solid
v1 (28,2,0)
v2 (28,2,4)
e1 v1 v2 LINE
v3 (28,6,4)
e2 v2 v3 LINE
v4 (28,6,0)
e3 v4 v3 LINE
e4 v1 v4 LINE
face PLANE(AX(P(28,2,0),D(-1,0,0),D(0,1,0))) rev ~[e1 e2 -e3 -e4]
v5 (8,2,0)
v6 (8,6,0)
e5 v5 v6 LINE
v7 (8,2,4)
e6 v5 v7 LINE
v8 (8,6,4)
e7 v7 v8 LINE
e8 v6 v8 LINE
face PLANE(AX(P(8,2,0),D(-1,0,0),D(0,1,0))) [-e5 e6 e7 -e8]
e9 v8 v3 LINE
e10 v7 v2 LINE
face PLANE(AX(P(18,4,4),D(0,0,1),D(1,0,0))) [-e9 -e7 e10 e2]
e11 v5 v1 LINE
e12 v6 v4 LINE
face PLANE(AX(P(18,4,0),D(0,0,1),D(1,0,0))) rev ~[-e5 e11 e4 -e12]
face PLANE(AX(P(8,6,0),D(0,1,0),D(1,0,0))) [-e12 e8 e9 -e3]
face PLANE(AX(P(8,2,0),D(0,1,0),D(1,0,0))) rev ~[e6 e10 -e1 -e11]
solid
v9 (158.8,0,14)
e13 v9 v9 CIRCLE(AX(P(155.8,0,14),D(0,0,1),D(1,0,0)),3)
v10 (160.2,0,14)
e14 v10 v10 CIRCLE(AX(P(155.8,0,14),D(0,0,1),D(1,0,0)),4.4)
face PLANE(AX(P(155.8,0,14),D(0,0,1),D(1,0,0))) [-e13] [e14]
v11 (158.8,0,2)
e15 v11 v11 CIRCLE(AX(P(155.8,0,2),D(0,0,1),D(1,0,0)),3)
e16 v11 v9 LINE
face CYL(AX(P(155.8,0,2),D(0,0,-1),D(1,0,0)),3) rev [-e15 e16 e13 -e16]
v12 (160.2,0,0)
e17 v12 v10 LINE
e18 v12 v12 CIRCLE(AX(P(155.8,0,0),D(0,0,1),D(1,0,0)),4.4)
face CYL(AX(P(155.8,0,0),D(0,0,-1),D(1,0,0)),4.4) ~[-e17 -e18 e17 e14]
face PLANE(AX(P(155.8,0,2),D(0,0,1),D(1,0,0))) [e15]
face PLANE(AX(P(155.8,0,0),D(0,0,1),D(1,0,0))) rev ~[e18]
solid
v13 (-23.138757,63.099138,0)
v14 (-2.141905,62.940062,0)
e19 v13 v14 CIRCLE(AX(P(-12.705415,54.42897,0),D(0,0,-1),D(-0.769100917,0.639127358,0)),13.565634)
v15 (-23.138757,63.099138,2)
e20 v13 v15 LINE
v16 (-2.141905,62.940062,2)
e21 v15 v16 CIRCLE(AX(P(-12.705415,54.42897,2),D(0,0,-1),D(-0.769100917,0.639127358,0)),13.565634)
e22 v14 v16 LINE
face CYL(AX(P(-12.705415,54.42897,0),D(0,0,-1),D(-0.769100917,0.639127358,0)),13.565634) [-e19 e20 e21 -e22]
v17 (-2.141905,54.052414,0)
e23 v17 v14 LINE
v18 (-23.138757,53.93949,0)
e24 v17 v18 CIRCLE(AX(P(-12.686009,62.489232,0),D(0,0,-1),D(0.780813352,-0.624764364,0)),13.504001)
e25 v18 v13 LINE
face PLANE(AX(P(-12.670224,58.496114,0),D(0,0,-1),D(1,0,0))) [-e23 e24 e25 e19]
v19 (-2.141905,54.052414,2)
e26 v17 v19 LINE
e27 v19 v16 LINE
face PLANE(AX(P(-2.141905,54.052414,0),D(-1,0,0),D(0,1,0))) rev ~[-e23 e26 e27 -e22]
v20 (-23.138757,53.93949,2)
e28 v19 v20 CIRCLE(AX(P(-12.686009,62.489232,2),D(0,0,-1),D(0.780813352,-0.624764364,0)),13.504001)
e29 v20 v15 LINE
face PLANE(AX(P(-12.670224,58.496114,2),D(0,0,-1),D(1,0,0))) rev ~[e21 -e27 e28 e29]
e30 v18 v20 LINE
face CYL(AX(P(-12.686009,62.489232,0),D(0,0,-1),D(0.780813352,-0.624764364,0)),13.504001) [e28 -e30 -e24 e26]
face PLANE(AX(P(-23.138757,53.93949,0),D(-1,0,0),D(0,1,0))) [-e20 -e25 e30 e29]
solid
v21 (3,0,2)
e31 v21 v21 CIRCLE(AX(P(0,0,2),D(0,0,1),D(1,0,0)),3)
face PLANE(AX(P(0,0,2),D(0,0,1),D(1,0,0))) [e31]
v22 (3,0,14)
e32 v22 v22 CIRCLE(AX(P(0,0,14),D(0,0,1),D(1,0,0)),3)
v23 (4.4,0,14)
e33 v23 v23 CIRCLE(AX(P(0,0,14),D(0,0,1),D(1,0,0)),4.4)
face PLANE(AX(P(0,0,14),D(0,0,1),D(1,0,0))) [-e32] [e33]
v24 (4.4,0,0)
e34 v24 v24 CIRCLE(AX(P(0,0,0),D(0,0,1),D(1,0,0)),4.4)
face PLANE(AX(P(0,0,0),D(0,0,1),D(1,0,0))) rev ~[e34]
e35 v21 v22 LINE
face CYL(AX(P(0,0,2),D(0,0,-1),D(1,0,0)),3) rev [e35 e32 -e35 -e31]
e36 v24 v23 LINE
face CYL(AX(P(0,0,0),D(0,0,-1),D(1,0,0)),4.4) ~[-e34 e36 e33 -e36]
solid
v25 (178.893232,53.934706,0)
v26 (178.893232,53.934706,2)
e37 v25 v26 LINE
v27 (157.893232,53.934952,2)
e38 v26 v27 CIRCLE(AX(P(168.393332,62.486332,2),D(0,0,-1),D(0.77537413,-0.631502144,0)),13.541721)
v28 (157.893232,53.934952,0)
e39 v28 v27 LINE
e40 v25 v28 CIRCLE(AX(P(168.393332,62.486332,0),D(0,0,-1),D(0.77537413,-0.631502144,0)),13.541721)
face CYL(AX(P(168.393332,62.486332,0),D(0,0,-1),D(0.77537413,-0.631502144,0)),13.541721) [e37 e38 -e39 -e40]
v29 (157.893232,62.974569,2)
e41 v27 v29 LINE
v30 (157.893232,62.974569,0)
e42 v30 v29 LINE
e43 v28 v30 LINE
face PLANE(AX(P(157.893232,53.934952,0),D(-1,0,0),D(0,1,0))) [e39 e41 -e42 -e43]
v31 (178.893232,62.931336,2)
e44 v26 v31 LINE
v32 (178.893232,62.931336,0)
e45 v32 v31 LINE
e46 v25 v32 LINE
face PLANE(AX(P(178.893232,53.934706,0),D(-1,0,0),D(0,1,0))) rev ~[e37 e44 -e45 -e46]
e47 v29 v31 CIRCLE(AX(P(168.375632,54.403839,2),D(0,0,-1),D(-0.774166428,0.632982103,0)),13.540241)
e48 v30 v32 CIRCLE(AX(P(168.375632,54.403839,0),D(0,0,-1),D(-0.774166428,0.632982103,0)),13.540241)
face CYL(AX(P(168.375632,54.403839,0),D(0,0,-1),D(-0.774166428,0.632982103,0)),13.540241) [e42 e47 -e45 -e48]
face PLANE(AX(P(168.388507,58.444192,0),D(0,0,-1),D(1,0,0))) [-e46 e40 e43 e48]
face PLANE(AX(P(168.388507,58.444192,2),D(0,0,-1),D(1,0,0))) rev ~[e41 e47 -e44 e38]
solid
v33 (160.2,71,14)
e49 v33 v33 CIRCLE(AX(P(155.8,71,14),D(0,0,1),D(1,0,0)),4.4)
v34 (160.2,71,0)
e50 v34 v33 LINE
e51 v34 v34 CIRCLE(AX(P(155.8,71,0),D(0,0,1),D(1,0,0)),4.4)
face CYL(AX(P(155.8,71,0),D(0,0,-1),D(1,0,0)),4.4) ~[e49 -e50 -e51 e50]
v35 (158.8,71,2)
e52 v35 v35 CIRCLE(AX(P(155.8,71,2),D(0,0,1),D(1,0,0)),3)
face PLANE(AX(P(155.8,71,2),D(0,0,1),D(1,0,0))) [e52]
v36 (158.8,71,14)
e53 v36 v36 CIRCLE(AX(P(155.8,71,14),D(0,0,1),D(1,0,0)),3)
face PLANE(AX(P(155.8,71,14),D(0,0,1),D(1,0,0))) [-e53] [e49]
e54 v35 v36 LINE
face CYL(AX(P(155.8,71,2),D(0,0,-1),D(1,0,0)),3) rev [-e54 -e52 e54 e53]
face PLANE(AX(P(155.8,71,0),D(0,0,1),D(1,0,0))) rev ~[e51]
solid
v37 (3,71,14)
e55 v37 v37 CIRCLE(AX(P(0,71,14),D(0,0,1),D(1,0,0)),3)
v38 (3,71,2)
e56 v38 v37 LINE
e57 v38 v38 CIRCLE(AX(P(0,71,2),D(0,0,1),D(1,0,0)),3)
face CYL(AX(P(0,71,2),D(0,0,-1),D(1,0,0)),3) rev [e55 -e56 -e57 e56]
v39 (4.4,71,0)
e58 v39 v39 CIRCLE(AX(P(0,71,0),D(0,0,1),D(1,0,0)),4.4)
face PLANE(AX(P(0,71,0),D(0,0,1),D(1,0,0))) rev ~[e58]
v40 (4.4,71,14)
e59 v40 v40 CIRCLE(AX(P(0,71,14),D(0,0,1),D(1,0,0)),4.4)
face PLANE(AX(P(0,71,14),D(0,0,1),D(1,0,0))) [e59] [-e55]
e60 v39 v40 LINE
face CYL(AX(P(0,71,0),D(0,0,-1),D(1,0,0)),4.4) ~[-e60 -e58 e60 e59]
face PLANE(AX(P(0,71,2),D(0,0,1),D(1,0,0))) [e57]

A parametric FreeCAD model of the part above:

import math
import FreeCAD as App
import Part
import Sketcher

V = App.Vector


def add_polygon(sketch, points):
    """Adds a closed chain of lines whose ends are joined by coincident constraints."""
    first, n = sketch.GeometryCount, len(points)
    for a, b in zip(points, points[1:] + points[:1]):
        sketch.addGeometry(Part.LineSegment(App.Vector(*a, 0), App.Vector(*b, 0)), False)
    for i in range(n):
        sketch.addConstraint(Sketcher.Constraint("Coincident", first + i, 2, first + (i + 1) % n, 1))

doc = App.newDocument("Part")
body = doc.addObject("PartDesign::Body", "Body")

sketch1 = body.newObject("Sketcher::SketchObject", "Sketch")
sketch1.AttachmentSupport = (doc.getObject("XY_Plane"), [""])
sketch1.MapMode = "FlatFace"
sketch1.addGeometry([
    Part.ArcOfCircle(Part.Circle(V(168, 62, 0), V(0, 0, 1), 14), math.radians(-141), math.radians(-39)),
    Part.LineSegment(V(158, 54, 0), V(158, 63, 0)),
    Part.ArcOfCircle(Part.Circle(V(168, 54, 0), V(0, 0, 1), 14), math.radians(39), math.radians(141)),
    Part.LineSegment(V(179, 63, 0), V(179, 54, 0)),
], False)
sketch1.addConstraint([
    Sketcher.Constraint("Coincident", 0, 1, 1, 1),
    Sketcher.Constraint("Coincident", 1, 2, 2, 2),
    Sketcher.Constraint("Coincident", 2, 1, 3, 1),
    Sketcher.Constraint("Coincident", 3, 2, 0, 2),
    Sketcher.Constraint("Vertical", 1),
    Sketcher.Constraint("Vertical", 3),
    Sketcher.Constraint("DistanceX", 1, 2, 2, 1, 21.0),
    Sketcher.Constraint("Radius", 0, 13.541721),
    Sketcher.Constraint("Radius", 2, 13.540241),
    Sketcher.Constraint("DistanceY", 3, 2, 3, 1, 8.99663),
    Sketcher.Constraint("DistanceX", 2, 3, 0, 3, 0.0177),
    Sketcher.Constraint("DistanceX", 0, 1, 2, 3, 10.4824),
    Sketcher.Constraint("DistanceY", -1, 1, 0, 3, 62.486332),
    Sketcher.Constraint("DistanceX", -1, 1, 2, 3, 168.375632),
])
pad1 = body.newObject("PartDesign::Pad", "Pad")
pad1.Profile = sketch1
pad1.Length = 2
body2 = doc.addObject("PartDesign::Body", "Body001")
body2.AllowCompound = True

sketch2 = body2.newObject("Sketcher::SketchObject", "Sketch001")
sketch2.AttachmentSupport = (doc.getObject("XY_Plane001"), [""])
sketch2.MapMode = "FlatFace"
sketch2.addGeometry([
    Part.ArcOfCircle(Part.Circle(V(-13, 62, 0), V(0, 0, 1), 14), math.radians(-141), math.radians(-39)),
    Part.LineSegment(V(-23, 54, 0), V(-23, 63, 0)),
    Part.ArcOfCircle(Part.Circle(V(-13, 54, 0), V(0, 0, 1), 14), math.radians(39), math.radians(140)),
    Part.LineSegment(V(-2, 63, 0), V(-2, 54, 0)),
], False)
sketch2.addConstraint([
    Sketcher.Constraint("Coincident", 0, 1, 1, 1),
    Sketcher.Constraint("Coincident", 1, 2, 2, 2),
    Sketcher.Constraint("Coincident", 2, 1, 3, 1),
    Sketcher.Constraint("Coincident", 3, 2, 0, 2),
    Sketcher.Constraint("Vertical", 1),
    Sketcher.Constraint("Vertical", 3),
    Sketcher.Constraint("Radius", 0, 13.504001),
    Sketcher.Constraint("Radius", 2, 13.565634),
    Sketcher.Constraint("DistanceY", 1, 1, 1, 2, 9.159648),
    Sketcher.Constraint("DistanceY", 3, 2, 3, 1, 8.887648),
    Sketcher.Constraint("DistanceX", 0, 3, -1, 1, 12.686009),
    Sketcher.Constraint("DistanceY", -1, 1, 2, 3, 54.42897),
    Sketcher.Constraint("DistanceY", -1, 1, 0, 1, 53.93949),
    Sketcher.Constraint("DistanceY", -1, 1, 2, 1, 62.940062),
])
pad2 = body2.newObject("PartDesign::Pad", "Pad001")
pad2.Profile = sketch2
pad2.Length = 2
doc.recompute()

boolean = body2.newObject("PartDesign::Boolean", "Boolean")
boolean.Type = "Fuse"
boolean.addObjects([body])
body3 = doc.addObject("PartDesign::Body", "Body002")

sketch3 = body3.newObject("Sketcher::SketchObject", "Sketch002")
sketch3.AttachmentSupport = (doc.getObject("XY_Plane002"), [""])
sketch3.MapMode = "FlatFace"
sketch3.AttachmentOffset = App.Placement(V(0, 0, 2), App.Rotation())
sketch3.addGeometry(Part.Circle(V(155.8, 0, 0), V(0, 0, 1), 3), False)
sketch3.addConstraint([
    Sketcher.Constraint("PointOnObject", 0, 3, -1),
    Sketcher.Constraint("Diameter", 0, 6.0),
    Sketcher.Constraint("DistanceX", -1, 1, 0, 3, 155.8),
])
pad3 = body3.newObject("PartDesign::Pad", "Pad002")
pad3.Profile = sketch3
pad3.Length = 12
body4 = doc.addObject("PartDesign::Body", "Body003")

sketch4 = body4.newObject("Sketcher::SketchObject", "Sketch003")
sketch4.AttachmentSupport = (doc.getObject("XY_Plane003"), [""])
sketch4.MapMode = "FlatFace"
sketch4.addGeometry(Part.Circle(V(155.8, 0, 0), V(0, 0, 1), 4.4), False)
sketch4.addConstraint([
    Sketcher.Constraint("PointOnObject", 0, 3, -1),
    Sketcher.Constraint("Diameter", 0, 8.8),
    Sketcher.Constraint("DistanceX", -1, 1, 0, 3, 155.8),
])
pad4 = body4.newObject("PartDesign::Pad", "Pad003")
pad4.Profile = sketch4
pad4.Length = 14
doc.recompute()

boolean2 = body4.newObject("PartDesign::Boolean", "Boolean001")
boolean2.Type = "Cut"
boolean2.addObjects([body3])
body5 = doc.addObject("PartDesign::Body", "Body004")

sketch5 = body5.newObject("Sketcher::SketchObject", "Sketch004")
sketch5.AttachmentSupport = (doc.getObject("XY_Plane004"), [""])
sketch5.MapMode = "FlatFace"
sketch5.AttachmentOffset = App.Placement(V(0, 0, 2), App.Rotation())
sketch5.addGeometry(Part.Circle(V(155.8, 71, 0), V(0, 0, 1), 3), False)
sketch5.addConstraint([
    Sketcher.Constraint("Diameter", 0, 6.0),
    Sketcher.Constraint("DistanceY", -1, 1, 0, 3, 71.0),
    Sketcher.Constraint("DistanceX", -1, 1, 0, 3, 155.8),
])
pad5 = body5.newObject("PartDesign::Pad", "Pad004")
pad5.Profile = sketch5
pad5.Length = 12
body6 = doc.addObject("PartDesign::Body", "Body005")

sketch6 = body6.newObject("Sketcher::SketchObject", "Sketch005")
sketch6.AttachmentSupport = (doc.getObject("XY_Plane005"), [""])
sketch6.MapMode = "FlatFace"
sketch6.addGeometry(Part.Circle(V(155.8, 71, 0), V(0, 0, 1), 4.4), False)
sketch6.addConstraint([
    Sketcher.Constraint("Diameter", 0, 8.8),
    Sketcher.Constraint("DistanceY", -1, 1, 0, 3, 71.0),
    Sketcher.Constraint("DistanceX", -1, 1, 0, 3, 155.8),
])
pad6 = body6.newObject("PartDesign::Pad", "Pad005")
pad6.Profile = sketch6
pad6.Length = 14
doc.recompute()

boolean3 = body6.newObject("PartDesign::Boolean", "Boolean002")
boolean3.Type = "Cut"
boolean3.addObjects([body5])
body7 = doc.addObject("PartDesign::Body", "Body006")
doc.recompute()

body6.Placement = App.Placement(V(-1, 0, 0), App.Rotation(V(0, 0, 1), 0))
boolean4 = body7.newObject("PartDesign::Boolean", "Boolean003")
boolean4.Type = "Fuse"
boolean4.addObjects([body6])
body8 = doc.addObject("PartDesign::Body", "Body007")

sketch7 = body8.newObject("Sketcher::SketchObject", "Sketch006")
sketch7.AttachmentSupport = (doc.getObject("XY_Plane007"), [""])
sketch7.MapMode = "FlatFace"
sketch7.AttachmentOffset = App.Placement(V(0, 0, 2), App.Rotation())
sketch7.addGeometry(Part.Circle(V(0, 71, 0), V(0, 0, 1), 3), False)
sketch7.addConstraint([
    Sketcher.Constraint("PointOnObject", 0, 3, -2),
    Sketcher.Constraint("Diameter", 0, 6.0),
    Sketcher.Constraint("DistanceY", -1, 1, 0, 3, 71.0),
])
pad7 = body8.newObject("PartDesign::Pad", "Pad006")
pad7.Profile = sketch7
pad7.Length = 12
body9 = doc.addObject("PartDesign::Body", "Body008")

sketch8 = body9.newObject("Sketcher::SketchObject", "Sketch007")
sketch8.AttachmentSupport = (doc.getObject("XY_Plane008"), [""])
sketch8.MapMode = "FlatFace"
sketch8.addGeometry(Part.Circle(V(0, 71, 0), V(0, 0, 1), 4.4), False)
sketch8.addConstraint([
    Sketcher.Constraint("PointOnObject", 0, 3, -2),
    Sketcher.Constraint("Diameter", 0, 8.8),
    Sketcher.Constraint("DistanceY", -1, 1, 0, 3, 71.0),
])
pad8 = body9.newObject("PartDesign::Pad", "Pad007")
pad8.Profile = sketch8
pad8.Length = 14
doc.recompute()

boolean5 = body9.newObject("PartDesign::Boolean", "Boolean004")
boolean5.Type = "Cut"
boolean5.addObjects([body8])
body10 = doc.addObject("PartDesign::Body", "Body009")
doc.recompute()

body9.Placement = App.Placement(V(1, 0, 0), App.Rotation(V(0, 0, 1), 0))
boolean6 = body10.newObject("PartDesign::Boolean", "Boolean005")
boolean6.Type = "Fuse"
boolean6.addObjects([body9])
body11 = doc.addObject("PartDesign::Body", "Body010")

sketch9 = body11.newObject("Sketcher::SketchObject", "Sketch008")
sketch9.AttachmentSupport = (doc.getObject("XY_Plane010"), [""])
sketch9.MapMode = "FlatFace"
sketch9.AttachmentOffset = App.Placement(V(0, 0, 2), App.Rotation())
sketch9.addGeometry(Part.Circle(V(0, 0, 0), V(0, 0, 1), 3), False)
sketch9.addConstraint([
    Sketcher.Constraint("Coincident", 0, 3, -1, 1),
    Sketcher.Constraint("Diameter", 0, 6.0),
])
pad9 = body11.newObject("PartDesign::Pad", "Pad008")
pad9.Profile = sketch9
pad9.Length = 12
body12 = doc.addObject("PartDesign::Body", "Body011")
body12.AllowCompound = True

sketch10 = body12.newObject("Sketcher::SketchObject", "Sketch009")
sketch10.AttachmentSupport = (doc.getObject("XY_Plane011"), [""])
sketch10.MapMode = "FlatFace"
sketch10.addGeometry(Part.Circle(V(0, 0, 0), V(0, 0, 1), 4.4), False)
sketch10.addConstraint([
    Sketcher.Constraint("Coincident", 0, 3, -1, 1),
    Sketcher.Constraint("Diameter", 0, 8.8),
])
pad10 = body12.newObject("PartDesign::Pad", "Pad009")
pad10.Profile = sketch10
pad10.Length = 14
doc.recompute()

boolean7 = body12.newObject("PartDesign::Boolean", "Boolean006")
boolean7.Type = "Cut"
boolean7.addObjects([body11])
doc.recompute()

boolean8 = body12.newObject("PartDesign::Boolean", "Boolean007")
boolean8.Type = "Fuse"
boolean8.addObjects([body4])
doc.recompute()

boolean9 = body12.newObject("PartDesign::Boolean", "Boolean008")
boolean9.Type = "Fuse"
boolean9.addObjects([body7])
doc.recompute()

boolean10 = body12.newObject("PartDesign::Boolean", "Boolean009")
boolean10.Type = "Fuse"
boolean10.addObjects([body10])
body13 = doc.addObject("PartDesign::Body", "Body012")

sketch11 = body13.newObject("Sketcher::SketchObject", "Sketch010")
sketch11.AttachmentSupport = (doc.getObject("XY_Plane012"), [""])
sketch11.MapMode = "FlatFace"
add_polygon(sketch11, [(8, 6), (8, 2), (28, 2), (28, 6)])
sketch11.addConstraint([
    Sketcher.Constraint("Vertical", 0),
    Sketcher.Constraint("Horizontal", 1),
    Sketcher.Constraint("Vertical", 2),
    Sketcher.Constraint("Horizontal", 3),
    Sketcher.Constraint("DistanceX", 1, 1, 1, 2, 20.0),
    Sketcher.Constraint("DistanceY", 0, 2, 0, 1, 4.0),
    Sketcher.Constraint("DistanceX", -1, 1, 0, 2, 8.0),
    Sketcher.Constraint("DistanceY", -1, 1, 0, 2, 2.0),
])
pad11 = body13.newObject("PartDesign::Pad", "Pad010")
pad11.Profile = sketch11
pad11.Length = 4

doc.recompute()
